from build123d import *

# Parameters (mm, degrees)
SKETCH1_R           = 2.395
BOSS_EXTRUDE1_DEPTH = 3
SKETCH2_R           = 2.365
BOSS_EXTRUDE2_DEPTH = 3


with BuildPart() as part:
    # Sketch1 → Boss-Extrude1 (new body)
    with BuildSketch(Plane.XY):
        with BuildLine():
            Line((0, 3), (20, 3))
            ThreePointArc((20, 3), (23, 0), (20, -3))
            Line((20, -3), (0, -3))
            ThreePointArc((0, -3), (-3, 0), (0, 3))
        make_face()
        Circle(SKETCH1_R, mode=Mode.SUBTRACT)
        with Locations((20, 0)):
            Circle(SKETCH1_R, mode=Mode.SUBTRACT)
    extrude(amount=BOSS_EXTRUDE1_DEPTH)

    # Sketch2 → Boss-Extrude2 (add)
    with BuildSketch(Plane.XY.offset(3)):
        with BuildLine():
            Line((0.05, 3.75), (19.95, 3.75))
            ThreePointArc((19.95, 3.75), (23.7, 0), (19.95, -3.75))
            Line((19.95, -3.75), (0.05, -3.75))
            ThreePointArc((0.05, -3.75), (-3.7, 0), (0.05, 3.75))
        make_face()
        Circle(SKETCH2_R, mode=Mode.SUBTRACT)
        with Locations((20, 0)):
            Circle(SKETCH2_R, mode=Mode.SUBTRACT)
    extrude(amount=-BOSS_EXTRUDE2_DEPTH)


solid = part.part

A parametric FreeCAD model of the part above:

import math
import FreeCAD as App
import Part
import Sketcher

V = App.Vector

doc = App.newDocument("Part")
body = doc.addObject("PartDesign::Body", "Body")

sketch1 = body.newObject("Sketcher::SketchObject", "Sketch")
sketch1.AttachmentSupport = (doc.getObject("XY_Plane"), [""])
sketch1.MapMode = "FlatFace"
sketch1.addGeometry([
    Part.LineSegment(V(20, 3, 0), V(0, 3, 0)),
    Part.ArcOfCircle(Part.Circle(V(0, 0, 0), V(0, 0, 1), 3), math.radians(90), math.radians(270)),
    Part.LineSegment(V(0, -3, 0), V(20, -3, 0)),
    Part.ArcOfCircle(Part.Circle(V(20, 0, 0), V(0, 0, 1), 3), math.radians(-90), math.radians(90)),
    Part.Circle(V(20, 0, 0), V(0, 0, 1), 2.4),
    Part.Circle(V(0, 0, 0), V(0, 0, 1), 2.4),
], False)
sketch1.addConstraint([
    Sketcher.Constraint("Tangent", 0, 2, 1, 1),
    Sketcher.Constraint("Tangent", 1, 2, 2, 1),
    Sketcher.Constraint("Tangent", 2, 2, 3, 1),
    Sketcher.Constraint("Tangent", 3, 2, 0, 1),
    Sketcher.Constraint("Horizontal", 0),
    Sketcher.Constraint("Horizontal", 2),
    Sketcher.Constraint("Coincident", 1, 3, -1, 1),
    Sketcher.Constraint("Coincident", 5, 3, -1, 1),
    Sketcher.Constraint("Coincident", 4, 3, 3, 3),
    Sketcher.Constraint("Equal", 4, 5),
    Sketcher.Constraint("Radius", 1, 3.0),
    Sketcher.Constraint("Diameter", 4, 4.79),
    Sketcher.Constraint("DistanceX", 0, 2, 0, 1, 20.0),
])
pad1 = body.newObject("PartDesign::Pad", "Pad")
pad1.Profile = sketch1
pad1.Length = 3

sketch2 = body.newObject("Sketcher::SketchObject", "Sketch001")
sketch2.AttachmentSupport = (doc.getObject("XY_Plane"), [""])
sketch2.MapMode = "FlatFace"
sketch2.AttachmentOffset = App.Placement(V(0, 0, 3), App.Rotation())
sketch2.addGeometry([
    Part.LineSegment(V(19.9, 3.8, 0), V(0.1, 3.8, 0)),
    Part.ArcOfCircle(Part.Circle(V(0.1, 0, 0), V(0, 0, 1), 3.8), math.radians(90), math.radians(270)),
    Part.LineSegment(V(0.1, -3.8, 0), V(19.9, -3.8, 0)),
    Part.ArcOfCircle(Part.Circle(V(19.9, 0, 0), V(0, 0, 1), 3.8), math.radians(-90), math.radians(90)),
    Part.Circle(V(20, 0, 0), V(0, 0, 1), 2.4),
    Part.Circle(V(0, 0, 0), V(0, 0, 1), 2.4),
], False)
sketch2.addConstraint([
    Sketcher.Constraint("Tangent", 0, 2, 1, 1),
    Sketcher.Constraint("Tangent", 1, 2, 2, 1),
    Sketcher.Constraint("Tangent", 2, 2, 3, 1),
    Sketcher.Constraint("Tangent", 3, 2, 0, 1),
    Sketcher.Constraint("Horizontal", 0),
    Sketcher.Constraint("Horizontal", 2),
    Sketcher.Constraint("Coincident", 5, 3, -1, 1),
    Sketcher.Constraint("Equal", 4, 5),
    Sketcher.Constraint("PointOnObject", 1, 3, -1),
    Sketcher.Constraint("PointOnObject", 4, 3, -1),
    Sketcher.Constraint("Diameter", 4, 4.73),
    Sketcher.Constraint("Radius", 1, 3.75),
    Sketcher.Constraint("DistanceX", 0, 2, 0, 1, 19.9),
    Sketcher.Constraint("DistanceX", -1, 1, 4, 3, 20.0),
    Sketcher.Constraint("DistanceX", -1, 1, 1, 3, 0.05),
])
pad2 = body.newObject("PartDesign::Pad", "Pad001")
pad2.Profile = sketch2
pad2.Length = 3
pad2.Reversed = True

doc.recompute()
